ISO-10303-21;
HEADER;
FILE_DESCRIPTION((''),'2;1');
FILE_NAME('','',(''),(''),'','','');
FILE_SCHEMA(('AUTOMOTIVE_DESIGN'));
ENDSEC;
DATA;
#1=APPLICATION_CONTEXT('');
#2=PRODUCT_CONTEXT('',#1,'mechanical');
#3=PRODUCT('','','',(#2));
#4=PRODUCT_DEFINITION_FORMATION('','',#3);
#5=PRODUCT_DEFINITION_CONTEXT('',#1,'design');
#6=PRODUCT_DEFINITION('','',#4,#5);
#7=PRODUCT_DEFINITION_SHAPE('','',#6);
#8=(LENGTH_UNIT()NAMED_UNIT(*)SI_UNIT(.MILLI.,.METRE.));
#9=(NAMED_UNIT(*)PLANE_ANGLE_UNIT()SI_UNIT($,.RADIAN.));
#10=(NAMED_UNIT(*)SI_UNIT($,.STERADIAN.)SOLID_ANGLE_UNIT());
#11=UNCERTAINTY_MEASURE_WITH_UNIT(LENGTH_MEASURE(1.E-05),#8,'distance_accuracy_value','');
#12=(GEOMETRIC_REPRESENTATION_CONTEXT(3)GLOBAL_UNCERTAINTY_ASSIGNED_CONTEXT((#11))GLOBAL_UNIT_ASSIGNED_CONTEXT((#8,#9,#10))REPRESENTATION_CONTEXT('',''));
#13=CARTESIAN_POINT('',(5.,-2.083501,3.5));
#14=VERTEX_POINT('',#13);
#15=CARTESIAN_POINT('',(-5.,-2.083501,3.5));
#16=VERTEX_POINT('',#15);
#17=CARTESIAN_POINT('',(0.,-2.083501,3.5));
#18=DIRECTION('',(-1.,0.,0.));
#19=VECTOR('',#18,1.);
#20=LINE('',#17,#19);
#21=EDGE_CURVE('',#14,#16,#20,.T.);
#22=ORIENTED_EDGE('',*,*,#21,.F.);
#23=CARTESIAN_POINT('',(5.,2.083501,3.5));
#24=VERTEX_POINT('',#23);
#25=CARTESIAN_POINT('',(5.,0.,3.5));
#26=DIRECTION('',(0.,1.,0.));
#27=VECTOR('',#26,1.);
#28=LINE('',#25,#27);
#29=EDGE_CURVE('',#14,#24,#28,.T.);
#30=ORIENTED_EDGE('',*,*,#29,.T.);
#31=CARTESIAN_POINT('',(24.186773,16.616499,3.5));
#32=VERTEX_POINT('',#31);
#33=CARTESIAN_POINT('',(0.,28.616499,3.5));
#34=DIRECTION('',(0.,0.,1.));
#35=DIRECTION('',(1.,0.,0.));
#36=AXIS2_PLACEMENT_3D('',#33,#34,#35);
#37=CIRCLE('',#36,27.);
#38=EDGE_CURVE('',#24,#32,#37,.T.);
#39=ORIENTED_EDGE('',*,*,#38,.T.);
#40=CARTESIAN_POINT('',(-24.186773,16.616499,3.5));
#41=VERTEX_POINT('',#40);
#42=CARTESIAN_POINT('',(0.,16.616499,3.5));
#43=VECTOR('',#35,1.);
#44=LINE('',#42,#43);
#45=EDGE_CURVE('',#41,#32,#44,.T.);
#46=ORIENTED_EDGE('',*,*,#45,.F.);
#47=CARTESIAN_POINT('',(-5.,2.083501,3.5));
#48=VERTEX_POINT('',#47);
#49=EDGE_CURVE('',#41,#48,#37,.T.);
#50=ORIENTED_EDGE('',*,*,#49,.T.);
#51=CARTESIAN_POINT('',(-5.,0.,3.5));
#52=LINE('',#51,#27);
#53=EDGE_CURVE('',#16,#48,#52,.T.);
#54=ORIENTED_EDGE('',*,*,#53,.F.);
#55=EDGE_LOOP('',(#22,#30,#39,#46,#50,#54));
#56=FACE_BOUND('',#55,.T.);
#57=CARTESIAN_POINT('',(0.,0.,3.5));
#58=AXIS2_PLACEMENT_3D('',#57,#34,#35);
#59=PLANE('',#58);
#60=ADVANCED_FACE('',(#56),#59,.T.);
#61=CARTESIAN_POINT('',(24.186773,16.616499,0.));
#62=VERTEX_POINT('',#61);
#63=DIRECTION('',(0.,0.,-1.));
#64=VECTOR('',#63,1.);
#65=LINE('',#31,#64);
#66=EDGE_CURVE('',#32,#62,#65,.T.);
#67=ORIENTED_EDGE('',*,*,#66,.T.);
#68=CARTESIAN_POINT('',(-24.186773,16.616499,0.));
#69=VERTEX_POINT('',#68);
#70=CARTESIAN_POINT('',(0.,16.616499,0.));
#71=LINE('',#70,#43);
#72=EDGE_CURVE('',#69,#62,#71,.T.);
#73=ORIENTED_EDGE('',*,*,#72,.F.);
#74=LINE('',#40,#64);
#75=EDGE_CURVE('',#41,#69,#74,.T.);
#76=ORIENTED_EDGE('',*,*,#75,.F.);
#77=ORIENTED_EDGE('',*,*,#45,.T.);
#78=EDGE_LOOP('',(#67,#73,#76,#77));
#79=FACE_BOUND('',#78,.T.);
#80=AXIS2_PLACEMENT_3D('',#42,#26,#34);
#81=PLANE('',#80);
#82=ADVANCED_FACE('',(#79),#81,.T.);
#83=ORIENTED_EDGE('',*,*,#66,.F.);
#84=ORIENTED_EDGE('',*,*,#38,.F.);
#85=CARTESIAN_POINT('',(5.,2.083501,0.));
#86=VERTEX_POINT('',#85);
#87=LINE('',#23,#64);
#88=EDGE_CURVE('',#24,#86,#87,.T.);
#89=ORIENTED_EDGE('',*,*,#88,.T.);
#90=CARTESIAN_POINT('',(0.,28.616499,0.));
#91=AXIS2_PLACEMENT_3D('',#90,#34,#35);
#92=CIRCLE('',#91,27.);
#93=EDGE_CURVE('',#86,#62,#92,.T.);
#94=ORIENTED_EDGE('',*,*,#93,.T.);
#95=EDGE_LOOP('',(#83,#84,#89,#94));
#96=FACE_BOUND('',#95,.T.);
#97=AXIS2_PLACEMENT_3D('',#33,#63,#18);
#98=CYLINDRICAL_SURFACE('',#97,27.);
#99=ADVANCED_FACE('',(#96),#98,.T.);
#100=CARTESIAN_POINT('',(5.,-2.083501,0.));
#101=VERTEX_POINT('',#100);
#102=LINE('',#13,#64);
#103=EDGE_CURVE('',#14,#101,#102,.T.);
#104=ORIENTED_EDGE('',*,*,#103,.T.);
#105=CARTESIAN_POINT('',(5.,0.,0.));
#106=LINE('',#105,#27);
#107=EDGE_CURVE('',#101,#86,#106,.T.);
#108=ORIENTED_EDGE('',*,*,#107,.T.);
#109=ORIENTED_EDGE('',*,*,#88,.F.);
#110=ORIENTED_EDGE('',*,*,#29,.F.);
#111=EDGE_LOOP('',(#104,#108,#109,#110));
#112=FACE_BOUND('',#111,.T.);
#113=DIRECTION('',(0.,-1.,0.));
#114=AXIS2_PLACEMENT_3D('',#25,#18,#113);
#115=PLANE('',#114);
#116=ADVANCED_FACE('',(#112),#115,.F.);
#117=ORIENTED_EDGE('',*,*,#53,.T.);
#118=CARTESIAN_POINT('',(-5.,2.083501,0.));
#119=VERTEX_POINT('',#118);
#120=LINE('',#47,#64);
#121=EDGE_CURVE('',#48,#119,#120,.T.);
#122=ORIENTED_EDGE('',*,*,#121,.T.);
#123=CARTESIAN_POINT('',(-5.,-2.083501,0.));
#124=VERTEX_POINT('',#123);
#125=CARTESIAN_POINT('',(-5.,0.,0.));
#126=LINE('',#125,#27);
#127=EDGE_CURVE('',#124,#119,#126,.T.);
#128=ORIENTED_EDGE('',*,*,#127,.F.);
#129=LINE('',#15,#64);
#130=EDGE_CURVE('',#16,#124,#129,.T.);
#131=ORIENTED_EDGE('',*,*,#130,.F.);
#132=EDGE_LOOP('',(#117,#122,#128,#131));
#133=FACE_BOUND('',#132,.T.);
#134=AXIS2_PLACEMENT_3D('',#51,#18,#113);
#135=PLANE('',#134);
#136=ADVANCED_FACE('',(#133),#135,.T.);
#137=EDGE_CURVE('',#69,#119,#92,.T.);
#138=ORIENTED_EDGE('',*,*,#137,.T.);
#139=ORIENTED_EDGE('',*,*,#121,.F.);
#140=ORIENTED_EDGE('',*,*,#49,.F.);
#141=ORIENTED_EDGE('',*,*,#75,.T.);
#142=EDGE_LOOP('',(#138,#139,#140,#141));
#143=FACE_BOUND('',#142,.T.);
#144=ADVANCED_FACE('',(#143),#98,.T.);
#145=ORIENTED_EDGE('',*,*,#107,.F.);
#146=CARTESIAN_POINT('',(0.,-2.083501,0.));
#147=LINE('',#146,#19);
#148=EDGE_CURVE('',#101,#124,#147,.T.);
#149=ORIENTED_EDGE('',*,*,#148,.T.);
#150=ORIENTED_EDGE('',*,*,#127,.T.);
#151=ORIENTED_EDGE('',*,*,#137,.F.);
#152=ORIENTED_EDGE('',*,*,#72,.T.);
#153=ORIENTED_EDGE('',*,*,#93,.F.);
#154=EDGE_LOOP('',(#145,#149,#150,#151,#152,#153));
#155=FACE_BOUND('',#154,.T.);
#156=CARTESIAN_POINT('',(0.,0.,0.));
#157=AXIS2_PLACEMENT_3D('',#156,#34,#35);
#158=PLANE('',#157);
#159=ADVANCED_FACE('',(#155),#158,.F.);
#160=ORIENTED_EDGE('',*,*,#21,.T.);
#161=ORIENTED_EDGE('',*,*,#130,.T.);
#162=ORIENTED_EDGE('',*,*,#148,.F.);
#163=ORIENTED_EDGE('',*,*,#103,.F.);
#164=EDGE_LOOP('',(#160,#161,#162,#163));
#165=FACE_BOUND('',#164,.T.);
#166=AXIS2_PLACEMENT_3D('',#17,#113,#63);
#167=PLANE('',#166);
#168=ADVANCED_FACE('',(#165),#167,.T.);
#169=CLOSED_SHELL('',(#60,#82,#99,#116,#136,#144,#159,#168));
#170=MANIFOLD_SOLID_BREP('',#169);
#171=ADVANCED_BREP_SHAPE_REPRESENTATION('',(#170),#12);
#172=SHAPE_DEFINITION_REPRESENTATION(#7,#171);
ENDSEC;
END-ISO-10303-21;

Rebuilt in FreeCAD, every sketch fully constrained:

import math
import FreeCAD as App
import Part
import Sketcher

V = App.Vector
Q = App.Units.Quantity

doc = App.newDocument("Part")
body = doc.addObject("PartDesign::Body", "Body")

sketch1 = body.newObject("Sketcher::SketchObject", "Sketch")
sketch1.AttachmentSupport = (doc.getObject("XY_Plane"), [""])
sketch1.MapMode = "FlatFace"
sketch1.addGeometry(Part.LineSegment(V(24.186773, 16.616499, 0), V(-24.186773, 16.616499, 0)), False)
sketch1.addGeometry(Part.ArcOfCircle(Part.Circle(V(0, 28.616499, 0), V(0, 0, 1), 27), math.radians(-153.6122), math.radians(-100.671929)), False)
sketch1.addGeometry(Part.LineSegment(V(-5, 2.083501, 0), V(-5, -2.083501, 0)), False)
sketch1.addGeometry(Part.LineSegment(V(-5, -2.083501, 0), V(5, -2.083501, 0)), False)
sketch1.addGeometry(Part.LineSegment(V(5, -2.083501, 0), V(5, 2.083501, 0)), False)
sketch1.addGeometry(Part.ArcOfCircle(Part.Circle(V(0, 28.616499, 0), V(0, 0, 1), 27), math.radians(-79.328071), math.radians(-26.3878)), False)
sketch1.addConstraint(Sketcher.Constraint("Coincident", 0, 2, 1, 1))
sketch1.addConstraint(Sketcher.Constraint("Coincident", 1, 2, 2, 1))
sketch1.addConstraint(Sketcher.Constraint("Coincident", 2, 2, 3, 1))
sketch1.addConstraint(Sketcher.Constraint("Coincident", 3, 2, 4, 1))
sketch1.addConstraint(Sketcher.Constraint("Coincident", 4, 2, 5, 1))
sketch1.addConstraint(Sketcher.Constraint("Coincident", 5, 2, 0, 1))
sketch1.addConstraint(Sketcher.Constraint("Horizontal", 0))
sketch1.addConstraint(Sketcher.Constraint("Vertical", 2))
sketch1.addConstraint(Sketcher.Constraint("Horizontal", 3))
sketch1.addConstraint(Sketcher.Constraint("Vertical", 4))
sketch1.addConstraint(Sketcher.Constraint("Coincident", 5, 3, 1, 3))
sketch1.addConstraint(Sketcher.Constraint("Equal", 1, 5))
sketch1.addConstraint(Sketcher.Constraint("Symmetric", 1, 2, 3, 2, -1, 1))
sketch1.addConstraint(Sketcher.Constraint("PointOnObject", 1, 3, -2))
sketch1.addConstraint(Sketcher.Constraint("Radius", 1, Q("27 mm")))
sketch1.addConstraint(Sketcher.Constraint("DistanceX", 3, 1, 3, 2, Q("10 mm")))
sketch1.addConstraint(Sketcher.Constraint("DistanceY", 0, 2, 1, 3, Q("12 mm")))
sketch1.addConstraint(Sketcher.Constraint("DistanceY", 2, 2, 0, 2, Q("18.7 mm")))
pad1 = body.newObject("PartDesign::Pad", "Pad")
pad1.Profile = sketch1
pad1.Length = 3.5

doc.recompute()
